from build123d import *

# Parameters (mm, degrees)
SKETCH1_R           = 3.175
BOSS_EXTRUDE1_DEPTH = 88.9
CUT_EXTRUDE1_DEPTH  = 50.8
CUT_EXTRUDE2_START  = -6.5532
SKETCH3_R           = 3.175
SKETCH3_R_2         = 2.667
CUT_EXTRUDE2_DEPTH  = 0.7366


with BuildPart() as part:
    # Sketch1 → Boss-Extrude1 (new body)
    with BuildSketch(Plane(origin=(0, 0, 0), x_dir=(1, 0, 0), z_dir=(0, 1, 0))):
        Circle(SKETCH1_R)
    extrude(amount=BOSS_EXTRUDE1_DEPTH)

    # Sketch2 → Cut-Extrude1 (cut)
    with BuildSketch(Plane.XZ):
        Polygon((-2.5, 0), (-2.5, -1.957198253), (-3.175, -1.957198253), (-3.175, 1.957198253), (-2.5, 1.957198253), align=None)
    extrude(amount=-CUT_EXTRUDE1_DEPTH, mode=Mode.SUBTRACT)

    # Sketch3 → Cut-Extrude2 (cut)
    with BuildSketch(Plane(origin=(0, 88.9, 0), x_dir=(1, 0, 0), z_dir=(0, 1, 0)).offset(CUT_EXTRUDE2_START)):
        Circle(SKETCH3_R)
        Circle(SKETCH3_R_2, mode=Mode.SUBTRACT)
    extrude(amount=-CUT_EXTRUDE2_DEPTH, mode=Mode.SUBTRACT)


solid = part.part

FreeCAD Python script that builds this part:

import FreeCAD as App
import Part
import Sketcher

V = App.Vector
Q = App.Units.Quantity

doc = App.newDocument("Part")
body = doc.addObject("PartDesign::Body", "Body")

sketch1 = body.newObject("Sketcher::SketchObject", "Sketch")
sketch1.AttachmentSupport = (doc.getObject("XZ_Plane"), [""])
sketch1.MapMode = "FlatFace"
sketch1.addGeometry(Part.Circle(V(0, 0, 0), V(0, 0, 1), 3.2), False)
sketch1.addConstraint([
    Sketcher.Constraint("Coincident", 0, 3, -1, 1),
    Sketcher.Constraint("Diameter", 0, Q("0.25 in")),
])
pad1 = body.newObject("PartDesign::Pad", "Pad")
pad1.Profile = sketch1
pad1.Length = Q("3.5 in")
pad1.Reversed = True

sketch2 = body.newObject("Sketcher::SketchObject", "Sketch001")
sketch2.AttachmentSupport = (doc.getObject("XZ_Plane"), [""])
sketch2.MapMode = "FlatFace"
sketch2.addGeometry([
    Part.LineSegment(V(-2.5, -2, 0), V(-2.5, 2, 0)),
    Part.LineSegment(V(-2.5, 2, 0), V(-3.2, 2, 0)),
    Part.LineSegment(V(-3.2, 2, 0), V(-3.2, -2, 0)),
    Part.LineSegment(V(-3.2, -2, 0), V(-2.5, -2, 0)),
], False)
sketch2.addConstraint([
    Sketcher.Constraint("Coincident", 0, 2, 1, 1),
    Sketcher.Constraint("Coincident", 1, 2, 2, 1),
    Sketcher.Constraint("Coincident", 2, 2, 3, 1),
    Sketcher.Constraint("Coincident", 3, 2, 0, 1),
    Sketcher.Constraint("Vertical", 0),
    Sketcher.Constraint("Horizontal", 1),
    Sketcher.Constraint("Vertical", 2),
    Sketcher.Constraint("Horizontal", 3),
    Sketcher.Constraint("DistanceX", 1, 2, -1, 1, Q("0.125 in")),
    Sketcher.Constraint("DistanceX", 1, 2, 1, 1, Q("0.675 mm")),
    Sketcher.Constraint("DistanceY", -1, 1, 0, 2, Q("1.957198 mm")),
    Sketcher.Constraint("DistanceY", 2, 2, -1, 1, Q("1.957198 mm")),
])
pocket1 = body.newObject("PartDesign::Pocket", "Pocket")
pocket1.Profile = sketch2
pocket1.Length = Q("2 in")

sketch3 = body.newObject("Sketcher::SketchObject", "Sketch002")
sketch3.AttachmentSupport = (doc.getObject("XZ_Plane"), [""])
sketch3.MapMode = "FlatFace"
sketch3.AttachmentOffset = App.Placement(V(0, 0, -3.242 * 25.4), App.Rotation())
sketch3.addGeometry([
    Part.Circle(V(0, 0, 0), V(0, 0, 1), 3.2),
    Part.Circle(V(0, 0, 0), V(0, 0, 1), 2.7),
], False)
sketch3.addConstraint([
    Sketcher.Constraint("Coincident", 0, 3, -1, 1),
    Sketcher.Constraint("Coincident", 1, 3, -1, 1),
    Sketcher.Constraint("Diameter", 0, Q("0.25 in")),
    Sketcher.Constraint("Diameter", 1, Q("0.21 in")),
])
pocket2 = body.newObject("PartDesign::Pocket", "Pocket001")
pocket2.Profile = sketch3
pocket2.Length = Q("0.029 in")
pocket2.Reversed = True

doc.recompute()
